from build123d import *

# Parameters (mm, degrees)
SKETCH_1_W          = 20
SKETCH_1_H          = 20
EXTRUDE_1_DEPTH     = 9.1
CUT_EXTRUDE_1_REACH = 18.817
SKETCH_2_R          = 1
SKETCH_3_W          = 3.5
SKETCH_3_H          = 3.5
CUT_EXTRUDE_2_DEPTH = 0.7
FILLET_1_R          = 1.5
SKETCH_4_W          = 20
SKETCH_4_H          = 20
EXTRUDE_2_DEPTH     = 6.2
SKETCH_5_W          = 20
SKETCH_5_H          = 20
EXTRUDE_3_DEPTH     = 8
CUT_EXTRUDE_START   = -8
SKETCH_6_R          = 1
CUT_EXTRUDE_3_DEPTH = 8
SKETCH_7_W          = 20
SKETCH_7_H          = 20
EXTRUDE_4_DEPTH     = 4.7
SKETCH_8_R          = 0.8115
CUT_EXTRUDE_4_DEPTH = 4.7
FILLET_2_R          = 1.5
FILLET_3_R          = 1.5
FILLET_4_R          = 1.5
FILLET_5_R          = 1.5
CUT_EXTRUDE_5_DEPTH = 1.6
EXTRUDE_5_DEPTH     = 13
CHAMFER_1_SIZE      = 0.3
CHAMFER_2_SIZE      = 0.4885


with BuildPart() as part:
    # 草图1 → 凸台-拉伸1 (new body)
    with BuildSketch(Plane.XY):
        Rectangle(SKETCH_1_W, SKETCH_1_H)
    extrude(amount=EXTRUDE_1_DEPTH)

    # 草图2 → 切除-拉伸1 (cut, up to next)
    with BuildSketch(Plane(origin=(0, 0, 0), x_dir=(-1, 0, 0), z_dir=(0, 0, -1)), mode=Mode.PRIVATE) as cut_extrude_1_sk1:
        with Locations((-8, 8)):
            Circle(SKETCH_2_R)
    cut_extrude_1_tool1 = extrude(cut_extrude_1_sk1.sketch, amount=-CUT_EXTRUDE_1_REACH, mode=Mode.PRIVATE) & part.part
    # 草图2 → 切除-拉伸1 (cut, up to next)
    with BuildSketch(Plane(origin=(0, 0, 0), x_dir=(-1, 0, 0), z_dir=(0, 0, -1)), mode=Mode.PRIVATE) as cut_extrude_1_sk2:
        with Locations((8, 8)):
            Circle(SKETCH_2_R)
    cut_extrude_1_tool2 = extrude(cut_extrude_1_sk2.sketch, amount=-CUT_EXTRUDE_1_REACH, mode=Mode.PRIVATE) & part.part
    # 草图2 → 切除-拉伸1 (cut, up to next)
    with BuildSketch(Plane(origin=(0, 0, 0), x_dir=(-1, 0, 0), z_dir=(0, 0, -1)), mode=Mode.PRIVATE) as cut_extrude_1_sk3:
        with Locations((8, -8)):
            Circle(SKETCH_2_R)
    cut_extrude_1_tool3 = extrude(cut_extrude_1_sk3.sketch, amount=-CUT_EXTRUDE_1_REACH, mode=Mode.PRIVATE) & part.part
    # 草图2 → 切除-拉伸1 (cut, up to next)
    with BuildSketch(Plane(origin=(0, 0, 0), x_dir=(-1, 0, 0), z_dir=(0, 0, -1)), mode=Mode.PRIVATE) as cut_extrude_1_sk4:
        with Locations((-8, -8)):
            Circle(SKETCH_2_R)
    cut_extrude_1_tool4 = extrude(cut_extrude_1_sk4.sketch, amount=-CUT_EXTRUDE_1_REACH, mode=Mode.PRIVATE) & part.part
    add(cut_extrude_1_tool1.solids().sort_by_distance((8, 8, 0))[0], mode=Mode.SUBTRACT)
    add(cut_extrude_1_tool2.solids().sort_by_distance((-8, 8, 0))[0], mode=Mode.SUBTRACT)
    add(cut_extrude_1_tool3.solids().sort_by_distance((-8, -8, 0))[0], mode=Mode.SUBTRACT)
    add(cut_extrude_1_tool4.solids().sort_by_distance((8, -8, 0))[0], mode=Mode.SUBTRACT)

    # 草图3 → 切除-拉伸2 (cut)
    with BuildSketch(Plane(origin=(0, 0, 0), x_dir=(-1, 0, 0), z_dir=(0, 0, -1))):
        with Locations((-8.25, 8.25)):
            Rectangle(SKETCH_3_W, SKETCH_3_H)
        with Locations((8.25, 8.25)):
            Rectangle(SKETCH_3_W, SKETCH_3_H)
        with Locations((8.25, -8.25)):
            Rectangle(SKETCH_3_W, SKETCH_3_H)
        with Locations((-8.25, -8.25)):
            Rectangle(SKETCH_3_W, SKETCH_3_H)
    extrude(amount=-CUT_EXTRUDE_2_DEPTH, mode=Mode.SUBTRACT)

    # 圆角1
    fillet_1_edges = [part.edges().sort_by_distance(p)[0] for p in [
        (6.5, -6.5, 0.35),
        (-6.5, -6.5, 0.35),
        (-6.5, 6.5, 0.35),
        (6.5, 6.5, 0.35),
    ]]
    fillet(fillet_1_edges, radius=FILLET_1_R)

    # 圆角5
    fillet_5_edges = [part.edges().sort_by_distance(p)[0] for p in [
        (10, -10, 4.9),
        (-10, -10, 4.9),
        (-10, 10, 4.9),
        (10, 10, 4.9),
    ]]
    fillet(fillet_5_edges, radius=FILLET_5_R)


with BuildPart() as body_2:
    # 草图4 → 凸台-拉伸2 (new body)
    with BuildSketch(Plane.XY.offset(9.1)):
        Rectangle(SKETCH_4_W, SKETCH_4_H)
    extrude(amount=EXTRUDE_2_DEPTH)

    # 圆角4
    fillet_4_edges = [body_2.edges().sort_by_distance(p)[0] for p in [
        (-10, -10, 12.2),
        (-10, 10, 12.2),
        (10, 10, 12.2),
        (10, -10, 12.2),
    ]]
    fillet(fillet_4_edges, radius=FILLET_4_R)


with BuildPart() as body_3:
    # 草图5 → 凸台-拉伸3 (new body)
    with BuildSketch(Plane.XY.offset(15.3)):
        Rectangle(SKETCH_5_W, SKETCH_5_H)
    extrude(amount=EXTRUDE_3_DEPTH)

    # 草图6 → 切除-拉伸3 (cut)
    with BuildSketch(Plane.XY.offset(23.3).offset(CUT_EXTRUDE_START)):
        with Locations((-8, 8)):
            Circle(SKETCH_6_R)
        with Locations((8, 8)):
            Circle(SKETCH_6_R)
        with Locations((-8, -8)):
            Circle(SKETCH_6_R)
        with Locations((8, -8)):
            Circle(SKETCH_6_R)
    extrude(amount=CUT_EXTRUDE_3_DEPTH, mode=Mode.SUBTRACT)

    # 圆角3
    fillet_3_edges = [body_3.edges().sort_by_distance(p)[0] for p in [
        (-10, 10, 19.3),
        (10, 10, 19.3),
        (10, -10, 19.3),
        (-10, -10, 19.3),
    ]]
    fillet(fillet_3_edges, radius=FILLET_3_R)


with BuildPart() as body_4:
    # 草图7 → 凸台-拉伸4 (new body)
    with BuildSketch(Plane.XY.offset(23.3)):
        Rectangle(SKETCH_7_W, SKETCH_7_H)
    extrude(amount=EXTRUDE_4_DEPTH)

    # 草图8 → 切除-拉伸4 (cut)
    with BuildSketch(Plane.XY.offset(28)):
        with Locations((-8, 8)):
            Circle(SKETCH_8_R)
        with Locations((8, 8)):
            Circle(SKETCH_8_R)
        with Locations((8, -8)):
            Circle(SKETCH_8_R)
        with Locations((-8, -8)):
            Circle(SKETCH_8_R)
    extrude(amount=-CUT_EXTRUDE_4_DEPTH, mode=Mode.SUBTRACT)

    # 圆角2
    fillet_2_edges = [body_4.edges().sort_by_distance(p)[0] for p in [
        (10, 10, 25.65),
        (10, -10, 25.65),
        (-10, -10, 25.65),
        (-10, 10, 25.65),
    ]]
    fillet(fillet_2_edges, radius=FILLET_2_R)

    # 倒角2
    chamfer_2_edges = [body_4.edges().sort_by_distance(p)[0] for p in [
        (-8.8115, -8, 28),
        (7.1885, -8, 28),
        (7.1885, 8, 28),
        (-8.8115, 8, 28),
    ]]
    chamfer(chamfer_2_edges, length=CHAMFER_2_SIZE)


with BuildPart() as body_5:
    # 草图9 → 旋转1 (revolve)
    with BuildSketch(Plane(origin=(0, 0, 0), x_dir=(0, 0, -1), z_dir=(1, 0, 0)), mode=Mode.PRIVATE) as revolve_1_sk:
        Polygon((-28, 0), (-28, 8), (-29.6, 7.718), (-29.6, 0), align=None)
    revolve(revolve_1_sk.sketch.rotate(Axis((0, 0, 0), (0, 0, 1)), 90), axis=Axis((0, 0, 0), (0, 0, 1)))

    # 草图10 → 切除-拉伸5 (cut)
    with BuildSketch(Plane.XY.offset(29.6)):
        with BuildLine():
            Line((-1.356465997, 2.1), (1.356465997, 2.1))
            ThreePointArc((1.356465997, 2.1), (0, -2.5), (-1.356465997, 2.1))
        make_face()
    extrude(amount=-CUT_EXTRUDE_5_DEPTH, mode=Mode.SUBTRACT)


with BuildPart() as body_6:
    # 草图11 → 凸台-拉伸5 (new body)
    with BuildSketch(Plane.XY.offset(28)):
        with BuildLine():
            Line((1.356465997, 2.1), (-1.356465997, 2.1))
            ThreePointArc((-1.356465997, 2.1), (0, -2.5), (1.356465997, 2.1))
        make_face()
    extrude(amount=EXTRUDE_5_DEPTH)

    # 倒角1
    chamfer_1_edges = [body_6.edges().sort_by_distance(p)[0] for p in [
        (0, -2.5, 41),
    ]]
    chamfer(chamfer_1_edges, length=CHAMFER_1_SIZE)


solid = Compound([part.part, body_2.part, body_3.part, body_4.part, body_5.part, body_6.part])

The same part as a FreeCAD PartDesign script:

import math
import FreeCAD as App
import Part
import Sketcher
Q = App.Units.Quantity


def edges_at(feature, points):
    """Names of the edges that pass closest to the given points."""
    edges = feature.Shape.Edges
    near = lambda p: min(range(len(edges)), key=lambda i: edges[i].distToShape(Part.Vertex(*p))[0])
    return sorted({f"Edge{near(p) + 1}" for p in points})


def add_polygon(sketch, points):
    """Adds a closed chain of lines whose ends are joined by coincident constraints."""
    first, n = sketch.GeometryCount, len(points)
    for a, b in zip(points, points[1:] + points[:1]):
        sketch.addGeometry(Part.LineSegment(App.Vector(*a, 0), App.Vector(*b, 0)), False)
    for i in range(n):
        sketch.addConstraint(Sketcher.Constraint("Coincident", first + i, 2, first + (i + 1) % n, 1))

doc = App.newDocument("Part")
body = doc.addObject("PartDesign::Body", "Body")

sketch1 = body.newObject("Sketcher::SketchObject", "Sketch")
sketch1.AttachmentSupport = (doc.getObject("XY_Plane"), [""])
sketch1.MapMode = "FlatFace"
add_polygon(sketch1, [(-10, 10), (-10, -10), (10, -10), (10, 10)])
sketch1.addConstraint([
    Sketcher.Constraint("Vertical", 0),
    Sketcher.Constraint("Horizontal", 1),
    Sketcher.Constraint("Vertical", 2),
    Sketcher.Constraint("Horizontal", 3),
    Sketcher.Constraint("Symmetric", 0, 2, 2, 2, -1, 1),
    Sketcher.Constraint("Equal", 3, 0),
    Sketcher.Constraint("DistanceX", 1, 1, 1, 2, Q("20 mm")),
])
pad1 = body.newObject("PartDesign::Pad", "Pad")
pad1.Profile = sketch1
pad1.Length = 9.1

sketch2 = body.newObject("Sketcher::SketchObject", "Sketch001")
sketch2.AttachmentSupport = (doc.getObject("XY_Plane"), [""])
sketch2.MapMode = "FlatFace"
sketch2.addGeometry(Part.Circle(App.Vector(8, 8, 0), App.Vector(0, 0, 1), 1), False)
sketch2.addConstraint([
    Sketcher.Constraint("Diameter", 0, Q("2 mm")),
    Sketcher.Constraint("DistanceX", -1, 1, 0, 3, Q("8 mm")),
    Sketcher.Constraint("DistanceY", -1, 1, 0, 3, Q("8 mm")),
])
pocket1 = body.newObject("PartDesign::Pocket", "Pocket")
pocket1.Profile = sketch2
pocket1.Type = "UpToFirst"
pocket1.Reversed = True

sketch3 = body.newObject("Sketcher::SketchObject", "Sketch002")
sketch3.AttachmentSupport = (doc.getObject("XY_Plane"), [""])
sketch3.MapMode = "FlatFace"
sketch3.addGeometry(Part.Circle(App.Vector(-8, 8, 0), App.Vector(0, 0, 1), 1), False)
sketch3.addConstraint([
    Sketcher.Constraint("Diameter", 0, Q("2 mm")),
    Sketcher.Constraint("DistanceX", 0, 3, -1, 1, Q("8 mm")),
    Sketcher.Constraint("DistanceY", -1, 1, 0, 3, Q("8 mm")),
])
pocket2 = body.newObject("PartDesign::Pocket", "Pocket001")
pocket2.Profile = sketch3
pocket2.Type = "UpToFirst"
pocket2.Reversed = True

sketch4 = body.newObject("Sketcher::SketchObject", "Sketch003")
sketch4.AttachmentSupport = (doc.getObject("XY_Plane"), [""])
sketch4.MapMode = "FlatFace"
sketch4.addGeometry(Part.Circle(App.Vector(-8, -8, 0), App.Vector(0, 0, 1), 1), False)
sketch4.addConstraint([
    Sketcher.Constraint("Diameter", 0, Q("2 mm")),
    Sketcher.Constraint("DistanceX", 0, 3, -1, 1, Q("8 mm")),
    Sketcher.Constraint("DistanceY", 0, 3, -1, 1, Q("8 mm")),
])
pocket3 = body.newObject("PartDesign::Pocket", "Pocket002")
pocket3.Profile = sketch4
pocket3.Type = "UpToFirst"
pocket3.Reversed = True

sketch5 = body.newObject("Sketcher::SketchObject", "Sketch004")
sketch5.AttachmentSupport = (doc.getObject("XY_Plane"), [""])
sketch5.MapMode = "FlatFace"
sketch5.addGeometry(Part.Circle(App.Vector(8, -8, 0), App.Vector(0, 0, 1), 1), False)
sketch5.addConstraint([
    Sketcher.Constraint("Diameter", 0, Q("2 mm")),
    Sketcher.Constraint("DistanceX", -1, 1, 0, 3, Q("8 mm")),
    Sketcher.Constraint("DistanceY", 0, 3, -1, 1, Q("8 mm")),
])
pocket4 = body.newObject("PartDesign::Pocket", "Pocket003")
pocket4.Profile = sketch5
pocket4.Type = "UpToFirst"
pocket4.Reversed = True

sketch6 = body.newObject("Sketcher::SketchObject", "Sketch005")
sketch6.AttachmentSupport = (doc.getObject("XY_Plane"), [""])
sketch6.MapMode = "FlatFace"
add_polygon(sketch6, [(10, 10), (10, 6.5), (6.5, 6.5), (6.5, 10)])
add_polygon(sketch6, [(-6.5, 10), (-6.5, 6.5), (-10, 6.5), (-10, 10)])
add_polygon(sketch6, [(-6.5, -6.5), (-6.5, -10), (-10, -10), (-10, -6.5)])
add_polygon(sketch6, [(10, -6.5), (10, -10), (6.5, -10), (6.5, -6.5)])
sketch6.addConstraint([
    Sketcher.Constraint("Vertical", 0),
    Sketcher.Constraint("Horizontal", 1),
    Sketcher.Constraint("Vertical", 2),
    Sketcher.Constraint("Horizontal", 3),
    Sketcher.Constraint("Vertical", 4),
    Sketcher.Constraint("Horizontal", 5),
    Sketcher.Constraint("Vertical", 6),
    Sketcher.Constraint("Horizontal", 7),
    Sketcher.Constraint("Vertical", 8),
    Sketcher.Constraint("Horizontal", 9),
    Sketcher.Constraint("Vertical", 10),
    Sketcher.Constraint("Horizontal", 11),
    Sketcher.Constraint("Vertical", 12),
    Sketcher.Constraint("Horizontal", 13),
    Sketcher.Constraint("Vertical", 14),
    Sketcher.Constraint("Horizontal", 15),
    Sketcher.Constraint("Symmetric", 2, 2, 8, 2, -1, 1),
    Sketcher.Constraint("Symmetric", 0, 2, 10, 2, -1, 1),
    Sketcher.Constraint("Symmetric", 6, 2, 12, 2, -1, 1),
    Sketcher.Constraint("Symmetric", 4, 2, 14, 2, -1, 1),
    Sketcher.Constraint("Symmetric", 1, 2, 4, 2, -2),
    Sketcher.Constraint("Symmetric", 3, 2, 6, 2, -2),
    Sketcher.Constraint("Equal", 15, 0),
    Sketcher.Constraint("DistanceX", 1, 2, 1, 1, Q("3.5 mm")),
    Sketcher.Constraint("DistanceX", -1, 1, 0, 2, Q("10 mm")),
    Sketcher.Constraint("DistanceY", -1, 1, 2, 2, Q("10 mm")),
])
pocket5 = body.newObject("PartDesign::Pocket", "Pocket004")
pocket5.Profile = sketch6
pocket5.Length = 0.7
pocket5.Reversed = True
doc.recompute()

fillet = body.newObject("PartDesign::Fillet", "Fillet")
fillet.Base = (pocket5, edges_at(pocket5, [
    (6.5, -6.5, 0.35),
    (-6.5, -6.5, 0.35),
    (-6.5, 6.5, 0.35),
    (6.5, 6.5, 0.35),
]))
fillet.Radius = 1.5
doc.recompute()

fillet2 = body.newObject("PartDesign::Fillet", "Fillet001")
fillet2.Base = (fillet, edges_at(fillet, [
    (10, -10, 4.9),
    (-10, -10, 4.9),
    (-10, 10, 4.9),
    (10, 10, 4.9),
]))
fillet2.Radius = 1.5
body2 = doc.addObject("PartDesign::Body", "Body001")

sketch7 = body2.newObject("Sketcher::SketchObject", "Sketch006")
sketch7.AttachmentSupport = (doc.getObject("XY_Plane001"), [""])
sketch7.MapMode = "FlatFace"
sketch7.AttachmentOffset = App.Placement(App.Vector(0, 0, 9.1), App.Rotation())
add_polygon(sketch7, [(-10, 10), (-10, -10), (10, -10), (10, 10)])
sketch7.addConstraint([
    Sketcher.Constraint("Vertical", 0),
    Sketcher.Constraint("Horizontal", 1),
    Sketcher.Constraint("Vertical", 2),
    Sketcher.Constraint("Horizontal", 3),
    Sketcher.Constraint("Symmetric", 0, 2, 2, 2, -1, 1),
    Sketcher.Constraint("Equal", 3, 0),
    Sketcher.Constraint("DistanceX", 1, 1, 1, 2, Q("20 mm")),
])
pad2 = body2.newObject("PartDesign::Pad", "Pad001")
pad2.Profile = sketch7
pad2.Length = 6.2
doc.recompute()

fillet3 = body2.newObject("PartDesign::Fillet", "Fillet002")
fillet3.Base = (pad2, edges_at(pad2, [
    (-10, -10, 12.2),
    (-10, 10, 12.2),
    (10, 10, 12.2),
    (10, -10, 12.2),
]))
fillet3.Radius = 1.5
body3 = doc.addObject("PartDesign::Body", "Body002")

sketch8 = body3.newObject("Sketcher::SketchObject", "Sketch007")
sketch8.AttachmentSupport = (doc.getObject("XY_Plane002"), [""])
sketch8.MapMode = "FlatFace"
sketch8.AttachmentOffset = App.Placement(App.Vector(0, 0, 15.3), App.Rotation())
add_polygon(sketch8, [(-10, 10), (-10, -10), (10, -10), (10, 10)])
sketch8.addConstraint([
    Sketcher.Constraint("Vertical", 0),
    Sketcher.Constraint("Horizontal", 1),
    Sketcher.Constraint("Vertical", 2),
    Sketcher.Constraint("Horizontal", 3),
    Sketcher.Constraint("Symmetric", 0, 2, 2, 2, -1, 1),
    Sketcher.Constraint("Equal", 3, 0),
    Sketcher.Constraint("DistanceX", 1, 1, 1, 2, Q("20 mm")),
])
pad3 = body3.newObject("PartDesign::Pad", "Pad002")
pad3.Profile = sketch8
pad3.Length = 8

sketch9 = body3.newObject("Sketcher::SketchObject", "Sketch008")
sketch9.AttachmentSupport = (doc.getObject("XY_Plane002"), [""])
sketch9.MapMode = "FlatFace"
sketch9.AttachmentOffset = App.Placement(App.Vector(0, 0, 15.3), App.Rotation())
sketch9.addGeometry([
    Part.Circle(App.Vector(-8, 8, 0), App.Vector(0, 0, 1), 1),
    Part.Circle(App.Vector(8, 8, 0), App.Vector(0, 0, 1), 1),
    Part.Circle(App.Vector(-8, -8, 0), App.Vector(0, 0, 1), 1),
    Part.Circle(App.Vector(8, -8, 0), App.Vector(0, 0, 1), 1),
], False)
sketch9.addConstraint([
    Sketcher.Constraint("Equal", 0, 1),
    Sketcher.Constraint("Equal", 1, 2),
    Sketcher.Constraint("Equal", 2, 3),
    Sketcher.Constraint("Symmetric", 1, 3, 2, 3, -1, 1),
    Sketcher.Constraint("Symmetric", 0, 3, 3, 3, -1, 1),
    Sketcher.Constraint("Symmetric", 0, 3, 1, 3, -2),
    Sketcher.Constraint("Diameter", 0, Q("2 mm")),
    Sketcher.Constraint("DistanceX", 0, 3, -1, 1, Q("8 mm")),
    Sketcher.Constraint("DistanceY", -1, 1, 0, 3, Q("8 mm")),
])
pocket6 = body3.newObject("PartDesign::Pocket", "Pocket005")
pocket6.Profile = sketch9
pocket6.Length = 8
pocket6.Reversed = True
doc.recompute()

fillet4 = body3.newObject("PartDesign::Fillet", "Fillet003")
fillet4.Base = (pocket6, edges_at(pocket6, [
    (-10, 10, 19.3),
    (10, 10, 19.3),
    (10, -10, 19.3),
    (-10, -10, 19.3),
]))
fillet4.Radius = 1.5
body4 = doc.addObject("PartDesign::Body", "Body003")

sketch10 = body4.newObject("Sketcher::SketchObject", "Sketch009")
sketch10.AttachmentSupport = (doc.getObject("XY_Plane003"), [""])
sketch10.MapMode = "FlatFace"
sketch10.AttachmentOffset = App.Placement(App.Vector(0, 0, 23.3), App.Rotation())
add_polygon(sketch10, [(-10, 10), (-10, -10), (10, -10), (10, 10)])
sketch10.addConstraint([
    Sketcher.Constraint("Vertical", 0),
    Sketcher.Constraint("Horizontal", 1),
    Sketcher.Constraint("Vertical", 2),
    Sketcher.Constraint("Horizontal", 3),
    Sketcher.Constraint("Symmetric", 0, 2, 2, 2, -1, 1),
    Sketcher.Constraint("Equal", 3, 0),
    Sketcher.Constraint("DistanceX", 1, 1, 1, 2, Q("20 mm")),
])
pad4 = body4.newObject("PartDesign::Pad", "Pad003")
pad4.Profile = sketch10
pad4.Length = 4.7

sketch11 = body4.newObject("Sketcher::SketchObject", "Sketch010")
sketch11.AttachmentSupport = (doc.getObject("XY_Plane003"), [""])
sketch11.MapMode = "FlatFace"
sketch11.AttachmentOffset = App.Placement(App.Vector(0, 0, 28), App.Rotation())
sketch11.addGeometry([
    Part.Circle(App.Vector(-8, 8, 0), App.Vector(0, 0, 1), 0.8115),
    Part.Circle(App.Vector(8, 8, 0), App.Vector(0, 0, 1), 0.8115),
    Part.Circle(App.Vector(8, -8, 0), App.Vector(0, 0, 1), 0.8115),
    Part.Circle(App.Vector(-8, -8, 0), App.Vector(0, 0, 1), 0.8115),
], False)
sketch11.addConstraint([
    Sketcher.Constraint("Equal", 0, 1),
    Sketcher.Constraint("Equal", 1, 2),
    Sketcher.Constraint("Equal", 2, 3),
    Sketcher.Constraint("Symmetric", 0, 3, 2, 3, -1, 1),
    Sketcher.Constraint("Symmetric", 1, 3, 3, 3, -1, 1),
    Sketcher.Constraint("Symmetric", 0, 3, 1, 3, -2),
    Sketcher.Constraint("Diameter", 0, Q("1.623 mm")),
    Sketcher.Constraint("DistanceX", 0, 3, -1, 1, Q("8 mm")),
    Sketcher.Constraint("DistanceY", -1, 1, 0, 3, Q("8 mm")),
])
pocket7 = body4.newObject("PartDesign::Pocket", "Pocket006")
pocket7.Profile = sketch11
pocket7.Length = 4.7
doc.recompute()

fillet5 = body4.newObject("PartDesign::Fillet", "Fillet004")
fillet5.Base = (pocket7, edges_at(pocket7, [
    (10, 10, 25.65),
    (10, -10, 25.65),
    (-10, -10, 25.65),
    (-10, 10, 25.65),
]))
fillet5.Radius = 1.5
doc.recompute()

chamfer = body4.newObject("PartDesign::Chamfer", "Chamfer")
chamfer.Base = (fillet5, edges_at(fillet5, [
    (-8.812, -8, 28),
    (7.189, -8, 28),
    (7.189, 8, 28),
    (-8.812, 8, 28),
]))
chamfer.Size = 0.4885
body5 = doc.addObject("PartDesign::Body", "Body004")

sketch12 = body5.newObject("Sketcher::SketchObject", "Sketch011")
sketch12.AttachmentSupport = (doc.getObject("YZ_Plane004"), [""])
sketch12.MapMode = "FlatFace"
add_polygon(sketch12, [(0, 28), (8, 28), (7.718, 29.6), (0, 29.6)])
sketch12.addConstraint([
    Sketcher.Constraint("Horizontal", 0),
    Sketcher.Constraint("Horizontal", 2),
    Sketcher.Constraint("Vertical", 3),
    Sketcher.Constraint("PointOnObject", 2, 2, -2),
    Sketcher.Constraint("DistanceX", 0, 1, 0, 2, Q("8 mm")),
    Sketcher.Constraint("DistanceY", 3, 2, 3, 1, Q("1.6 mm")),
    Sketcher.Constraint("DistanceY", -1, 1, 0, 2, Q("28 mm")),
    Sketcher.Constraint("DistanceX", 2, 2, 2, 1, Q("7.718 mm")),
])
revolution = body5.newObject("PartDesign::Revolution", "Revolution")
revolution.Profile = sketch12
revolution.ReferenceAxis = (sketch12, ["V_Axis"])
revolution.Angle = 360

sketch13 = body5.newObject("Sketcher::SketchObject", "Sketch012")
sketch13.AttachmentSupport = (doc.getObject("XY_Plane004"), [""])
sketch13.MapMode = "FlatFace"
sketch13.AttachmentOffset = App.Placement(App.Vector(0, 0, 29.6), App.Rotation())
sketch13.addGeometry([
    Part.LineSegment(App.Vector(1.356466, 2.1, 0), App.Vector(-1.356466, 2.1, 0)),
    Part.ArcOfCircle(Part.Circle(App.Vector(0, 0, 0), App.Vector(0, 0, 1), 2.5), math.radians(122.85988), math.radians(417.14012)),
], False)
sketch13.addConstraint([
    Sketcher.Constraint("Coincident", 0, 1, 1, 2),
    Sketcher.Constraint("Coincident", 1, 1, 0, 2),
    Sketcher.Constraint("Horizontal", 0),
    Sketcher.Constraint("Coincident", 1, 3, -1, 1),
    Sketcher.Constraint("Radius", 1, Q("2.5 mm")),
    Sketcher.Constraint("DistanceY", -1, 1, 0, 1, Q("2.1 mm")),
])
pocket8 = body5.newObject("PartDesign::Pocket", "Pocket007")
pocket8.Profile = sketch13
pocket8.Length = 1.6
body6 = doc.addObject("PartDesign::Body", "Body005")

sketch14 = body6.newObject("Sketcher::SketchObject", "Sketch013")
sketch14.AttachmentSupport = (doc.getObject("XY_Plane005"), [""])
sketch14.MapMode = "FlatFace"
sketch14.AttachmentOffset = App.Placement(App.Vector(0, 0, 28), App.Rotation())
sketch14.addGeometry([
    Part.LineSegment(App.Vector(1.356466, 2.1, 0), App.Vector(-1.356466, 2.1, 0)),
    Part.ArcOfCircle(Part.Circle(App.Vector(0, 0, 0), App.Vector(0, 0, 1), 2.5), math.radians(122.85988), math.radians(417.14012)),
], False)
sketch14.addConstraint([
    Sketcher.Constraint("Coincident", 0, 1, 1, 2),
    Sketcher.Constraint("Coincident", 1, 1, 0, 2),
    Sketcher.Constraint("Horizontal", 0),
    Sketcher.Constraint("Coincident", 1, 3, -1, 1),
    Sketcher.Constraint("Radius", 1, Q("2.5 mm")),
    Sketcher.Constraint("DistanceY", -1, 1, 0, 1, Q("2.1 mm")),
])
pad5 = body6.newObject("PartDesign::Pad", "Pad004")
pad5.Profile = sketch14
pad5.Length = 13
doc.recompute()

chamfer2 = body6.newObject("PartDesign::Chamfer", "Chamfer001")
chamfer2.Base = (pad5, edges_at(pad5, [(0, -2.5, 41)]))
chamfer2.Size = 0.3

doc.recompute()
